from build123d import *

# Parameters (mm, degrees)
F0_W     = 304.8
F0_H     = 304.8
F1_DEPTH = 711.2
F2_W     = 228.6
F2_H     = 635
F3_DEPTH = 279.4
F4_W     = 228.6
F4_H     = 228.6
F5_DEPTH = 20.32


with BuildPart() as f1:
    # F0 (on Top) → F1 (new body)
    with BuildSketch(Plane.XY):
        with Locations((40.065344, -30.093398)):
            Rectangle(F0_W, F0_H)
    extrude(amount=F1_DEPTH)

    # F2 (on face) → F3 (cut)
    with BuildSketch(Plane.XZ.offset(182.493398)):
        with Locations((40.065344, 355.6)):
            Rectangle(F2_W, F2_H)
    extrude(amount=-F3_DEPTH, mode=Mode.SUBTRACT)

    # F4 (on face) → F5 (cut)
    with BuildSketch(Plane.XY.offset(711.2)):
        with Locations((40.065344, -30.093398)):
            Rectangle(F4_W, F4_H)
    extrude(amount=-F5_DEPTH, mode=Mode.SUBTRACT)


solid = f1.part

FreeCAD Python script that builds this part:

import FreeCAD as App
import Part
import Sketcher

V = App.Vector
Q = App.Units.Quantity


def add_polygon(sketch, points):
    """Adds a closed chain of lines whose ends are joined by coincident constraints."""
    first, n = sketch.GeometryCount, len(points)
    for a, b in zip(points, points[1:] + points[:1]):
        sketch.addGeometry(Part.LineSegment(App.Vector(*a, 0), App.Vector(*b, 0)), False)
    for i in range(n):
        sketch.addConstraint(Sketcher.Constraint("Coincident", first + i, 2, first + (i + 1) % n, 1))

doc = App.newDocument("Part")
body = doc.addObject("PartDesign::Body", "Body")

sketch1 = doc.addObject("Sketcher::SketchObject", "Sketch")
body.addObject(sketch1)
sketch1.AttachmentSupport = (doc.XY_Plane, [""])
sketch1.MapMode = "FlatFace"
add_polygon(sketch1, [(-112.334656, 122.306602), (-112.334656, -182.493398), (192.465344, -182.493398), (192.465344, 122.306602)])
sketch1.addConstraint([
    Sketcher.Constraint("Vertical", 0),
    Sketcher.Constraint("Horizontal", 1),
    Sketcher.Constraint("Vertical", 2),
    Sketcher.Constraint("Horizontal", 3),
    Sketcher.Constraint("Equal", 3, 0),
    Sketcher.Constraint("DistanceX", 1, 1, 1, 2, Q("12 in")),
    Sketcher.Constraint("DistanceY", 0, 2, -1, 1, 182.493398),
    Sketcher.Constraint("DistanceX", 0, 2, -1, 1, 112.334656),
])
pad1 = doc.addObject("PartDesign::Pad", "Pad")
body.addObject(pad1)
pad1.Profile = sketch1
pad1.Length = Q("28 in")

sketch2 = doc.addObject("Sketcher::SketchObject", "Sketch001")
body.addObject(sketch2)
sketch2.AttachmentSupport = (doc.XZ_Plane, [""])
sketch2.MapMode = "FlatFace"
sketch2.AttachmentOffset = App.Placement(V(0, 0, 182.493398), App.Rotation())
add_polygon(sketch2, [(-74.234656, 673.1), (-74.234656, 38.1), (154.365344, 38.1), (154.365344, 673.1)])
sketch2.addConstraint([
    Sketcher.Constraint("Vertical", 0),
    Sketcher.Constraint("Horizontal", 1),
    Sketcher.Constraint("Vertical", 2),
    Sketcher.Constraint("Horizontal", 3),
    Sketcher.Constraint("DistanceX", 1, 1, 1, 2, Q("9 in")),
    Sketcher.Constraint("DistanceY", 0, 2, 0, 1, Q("25 in")),
    Sketcher.Constraint("DistanceY", -1, 1, 0, 2, Q("1.5 in")),
    Sketcher.Constraint("DistanceX", 0, 2, -1, 1, 74.234656),
])
pocket1 = doc.addObject("PartDesign::Pocket", "Pocket")
body.addObject(pocket1)
pocket1.Profile = sketch2
pocket1.Length = Q("11 in")

sketch3 = doc.addObject("Sketcher::SketchObject", "Sketch002")
body.addObject(sketch3)
sketch3.AttachmentSupport = (doc.XY_Plane, [""])
sketch3.MapMode = "FlatFace"
sketch3.AttachmentOffset = App.Placement(V(0, 0, 28 * 25.4), App.Rotation())
add_polygon(sketch3, [(-74.234656, 84.206602), (-74.234656, -144.393398), (154.365344, -144.393398), (154.365344, 84.206602)])
sketch3.addConstraint([
    Sketcher.Constraint("Vertical", 0),
    Sketcher.Constraint("Horizontal", 1),
    Sketcher.Constraint("Vertical", 2),
    Sketcher.Constraint("Horizontal", 3),
    Sketcher.Constraint("Equal", 3, 0),
    Sketcher.Constraint("DistanceX", 1, 1, 1, 2, Q("9 in")),
    Sketcher.Constraint("DistanceX", 0, 2, -1, 1, 74.234656),
    Sketcher.Constraint("DistanceY", 0, 2, -1, 1, 144.393398),
])
pocket2 = doc.addObject("PartDesign::Pocket", "Pocket001")
body.addObject(pocket2)
pocket2.Profile = sketch3
pocket2.Length = Q("0.8 in")

doc.recompute()
